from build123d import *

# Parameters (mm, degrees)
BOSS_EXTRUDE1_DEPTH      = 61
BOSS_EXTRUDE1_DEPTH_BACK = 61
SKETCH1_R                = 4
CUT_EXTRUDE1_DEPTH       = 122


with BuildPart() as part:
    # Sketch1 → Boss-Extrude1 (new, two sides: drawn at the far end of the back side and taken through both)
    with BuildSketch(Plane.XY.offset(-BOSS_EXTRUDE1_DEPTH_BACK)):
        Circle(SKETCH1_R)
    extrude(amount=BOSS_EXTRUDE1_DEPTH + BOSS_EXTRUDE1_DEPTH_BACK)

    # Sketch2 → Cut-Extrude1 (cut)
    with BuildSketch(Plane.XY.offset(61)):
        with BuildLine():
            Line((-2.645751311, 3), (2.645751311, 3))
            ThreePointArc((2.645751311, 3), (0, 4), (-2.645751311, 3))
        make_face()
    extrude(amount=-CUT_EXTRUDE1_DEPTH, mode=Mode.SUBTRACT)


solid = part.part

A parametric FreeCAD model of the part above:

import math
import FreeCAD as App
import Part
import Sketcher
from FreeCAD import Vector

doc = App.newDocument("Part")
params = doc.addObject("Spreadsheet::Sheet", "Params")
for row, (alias, value) in enumerate([
    ("sketch1_diameter", "8 mm"),
    ("pad1_length", "61 mm"),
    ("pad1_length2", "61 mm"),
    ("sketch2_radius", "4 mm"),
    ("pocket1_length", "122 mm"),
], start=1):
    params.set(f"A{row}", alias)
    params.set(f"B{row}", "=" + value)
    params.setAlias(f"B{row}", alias)

body = doc.addObject("PartDesign::Body", "Body")

sketch1 = body.newObject("Sketcher::SketchObject", "Sketch")
sketch1.AttachmentSupport = (doc.getObject("XY_Plane"), [""])
sketch1.MapMode = "FlatFace"
sketch1.addGeometry(Part.Circle(Vector(0, 0, 0), Vector(0, 0, 1), 4), False)
sketch1.addConstraint([
    Sketcher.Constraint("Coincident", 0, 3, -1, 1),
    Sketcher.Constraint("Diameter", 0, 8.0),
])
sketch1.setExpression("Constraints[1]", "Params.sketch1_diameter")
pad1 = body.newObject("PartDesign::Pad", "Pad")
pad1.Profile = sketch1
pad1.Type = "TwoLengths"
pad1.setExpression("Length", "Params.pad1_length")
pad1.setExpression("Length2", "Params.pad1_length2")

sketch2 = body.newObject("Sketcher::SketchObject", "Sketch001")
sketch2.AttachmentSupport = (doc.getObject("XY_Plane"), [""])
sketch2.MapMode = "FlatFace"
sketch2.AttachmentOffset = App.Placement(Vector(0, 0, 61), App.Rotation())
sketch2.addGeometry([
    Part.LineSegment(Vector(-2.645751, 3, 0), Vector(2.645751, 3, 0)),
    Part.ArcOfCircle(Part.Circle(Vector(0, 0, 0), Vector(0, 0, 1), 4), math.radians(48.590378), math.radians(131.409622)),
], False)
sketch2.addConstraint([
    Sketcher.Constraint("Coincident", 0, 1, 1, 2),
    Sketcher.Constraint("Coincident", 1, 1, 0, 2),
    Sketcher.Constraint("Horizontal", 0),
    Sketcher.Constraint("Coincident", 1, 3, -1, 1),
    Sketcher.Constraint("Radius", 1, 4.0),
    Sketcher.Constraint("DistanceY", -1, 1, 0, 1, 3.0),
])
sketch2.setExpression("Constraints[4]", "Params.sketch2_radius")
pocket1 = body.newObject("PartDesign::Pocket", "Pocket")
pocket1.Profile = sketch2
pocket1.setExpression("Length", "Params.pocket1_length")

doc.recompute()
